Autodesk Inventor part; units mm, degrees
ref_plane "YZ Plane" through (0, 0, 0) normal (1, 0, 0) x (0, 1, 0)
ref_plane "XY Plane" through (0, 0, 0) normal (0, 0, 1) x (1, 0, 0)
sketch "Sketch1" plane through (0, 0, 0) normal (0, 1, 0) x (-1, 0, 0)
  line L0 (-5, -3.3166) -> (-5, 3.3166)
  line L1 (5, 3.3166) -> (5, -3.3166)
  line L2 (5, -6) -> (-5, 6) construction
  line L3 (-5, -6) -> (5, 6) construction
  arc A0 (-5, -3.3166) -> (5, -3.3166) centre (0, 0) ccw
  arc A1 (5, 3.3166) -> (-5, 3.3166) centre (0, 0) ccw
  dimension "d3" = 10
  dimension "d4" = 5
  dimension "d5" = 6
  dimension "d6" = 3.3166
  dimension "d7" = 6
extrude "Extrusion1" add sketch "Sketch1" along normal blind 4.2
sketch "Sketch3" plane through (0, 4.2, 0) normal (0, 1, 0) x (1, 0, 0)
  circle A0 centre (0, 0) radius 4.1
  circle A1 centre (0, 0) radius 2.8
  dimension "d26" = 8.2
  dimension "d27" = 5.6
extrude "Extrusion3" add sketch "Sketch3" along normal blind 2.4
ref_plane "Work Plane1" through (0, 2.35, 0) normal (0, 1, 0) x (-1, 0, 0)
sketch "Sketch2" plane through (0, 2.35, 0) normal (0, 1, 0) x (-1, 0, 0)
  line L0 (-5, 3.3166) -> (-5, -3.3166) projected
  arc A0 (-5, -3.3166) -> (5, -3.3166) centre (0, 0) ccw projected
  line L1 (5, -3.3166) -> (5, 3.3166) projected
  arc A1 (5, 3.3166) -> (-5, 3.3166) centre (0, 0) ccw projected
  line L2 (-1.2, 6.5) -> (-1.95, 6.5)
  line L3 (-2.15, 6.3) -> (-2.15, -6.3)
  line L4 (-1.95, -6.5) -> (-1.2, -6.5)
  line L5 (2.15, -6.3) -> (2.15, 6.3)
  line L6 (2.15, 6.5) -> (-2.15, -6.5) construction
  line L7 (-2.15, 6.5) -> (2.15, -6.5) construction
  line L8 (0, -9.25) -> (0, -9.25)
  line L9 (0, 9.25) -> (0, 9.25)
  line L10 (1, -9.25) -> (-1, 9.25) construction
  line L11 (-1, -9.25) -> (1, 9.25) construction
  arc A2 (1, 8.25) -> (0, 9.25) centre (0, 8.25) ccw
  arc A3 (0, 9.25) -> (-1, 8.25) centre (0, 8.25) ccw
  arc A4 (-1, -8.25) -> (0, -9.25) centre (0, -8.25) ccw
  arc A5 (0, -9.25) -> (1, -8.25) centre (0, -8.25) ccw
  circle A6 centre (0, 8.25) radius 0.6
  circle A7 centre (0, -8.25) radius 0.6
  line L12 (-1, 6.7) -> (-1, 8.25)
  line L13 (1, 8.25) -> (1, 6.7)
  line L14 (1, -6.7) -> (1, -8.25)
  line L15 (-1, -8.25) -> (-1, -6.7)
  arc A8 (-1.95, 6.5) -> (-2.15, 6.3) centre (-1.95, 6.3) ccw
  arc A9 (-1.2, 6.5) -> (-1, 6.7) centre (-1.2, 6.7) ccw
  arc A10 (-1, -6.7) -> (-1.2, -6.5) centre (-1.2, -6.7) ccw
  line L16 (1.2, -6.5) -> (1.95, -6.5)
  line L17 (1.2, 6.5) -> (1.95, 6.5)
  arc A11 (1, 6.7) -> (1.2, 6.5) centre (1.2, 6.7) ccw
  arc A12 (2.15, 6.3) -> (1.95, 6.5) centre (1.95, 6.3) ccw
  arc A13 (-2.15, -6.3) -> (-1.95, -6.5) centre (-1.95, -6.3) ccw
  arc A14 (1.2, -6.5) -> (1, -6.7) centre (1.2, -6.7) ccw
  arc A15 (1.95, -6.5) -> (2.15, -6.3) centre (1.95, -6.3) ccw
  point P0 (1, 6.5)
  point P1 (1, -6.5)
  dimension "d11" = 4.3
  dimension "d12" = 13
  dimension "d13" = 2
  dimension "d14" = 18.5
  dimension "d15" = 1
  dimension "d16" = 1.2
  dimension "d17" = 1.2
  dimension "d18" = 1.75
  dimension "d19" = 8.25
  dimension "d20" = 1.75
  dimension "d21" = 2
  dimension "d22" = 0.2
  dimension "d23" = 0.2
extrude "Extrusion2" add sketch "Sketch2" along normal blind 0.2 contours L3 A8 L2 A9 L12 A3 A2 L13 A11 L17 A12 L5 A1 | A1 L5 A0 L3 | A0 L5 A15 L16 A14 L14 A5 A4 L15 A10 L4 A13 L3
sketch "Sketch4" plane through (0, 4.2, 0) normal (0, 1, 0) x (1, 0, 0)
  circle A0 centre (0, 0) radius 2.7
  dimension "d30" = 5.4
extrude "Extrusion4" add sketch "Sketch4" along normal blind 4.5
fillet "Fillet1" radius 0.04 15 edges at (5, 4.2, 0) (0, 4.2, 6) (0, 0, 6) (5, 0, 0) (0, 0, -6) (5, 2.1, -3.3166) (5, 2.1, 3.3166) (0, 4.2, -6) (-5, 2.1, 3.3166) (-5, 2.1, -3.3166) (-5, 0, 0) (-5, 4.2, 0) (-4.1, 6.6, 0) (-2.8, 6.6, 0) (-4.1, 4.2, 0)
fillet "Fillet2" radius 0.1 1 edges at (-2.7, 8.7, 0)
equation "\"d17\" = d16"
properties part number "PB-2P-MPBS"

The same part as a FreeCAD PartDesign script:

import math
import FreeCAD as App
import Part
import Sketcher


def edges_at(feature, points):
    """Names of the edges that pass closest to the given points."""
    edges = feature.Shape.Edges
    near = lambda p: min(range(len(edges)), key=lambda i: edges[i].distToShape(Part.Vertex(*p))[0])
    return sorted({f"Edge{near(p) + 1}" for p in points})

doc = App.newDocument("Part")
params = doc.addObject("Spreadsheet::Sheet", "Params")
for row, (alias, value) in enumerate([
    ("sketch1_radius", "6 mm"),
    ("pad1_length", "4.2 mm"),
    ("sketch2_diameter", "8.2 mm"),
    ("sketch2_diameter2", "5.6 mm"),
    ("pad2_length", "2.4 mm"),
    ("sketch3_radius", "1 mm"),
    ("sketch3_diameter", "1.2 mm"),
    ("sketch3_radius2", "0.2 mm"),
    ("sketch3_width", "0.75 mm"),
    ("pad3_length", "0.2 mm"),
    ("sketch4_diameter", "5.4 mm"),
    ("pad4_length", "4.5 mm"),
    ("fillet_radius", "0.04 mm"),
    ("fillet2_radius", "0.1 mm"),
], start=1):
    params.set(f"A{row}", alias)
    params.set(f"B{row}", "=" + value)
    params.setAlias(f"B{row}", alias)

body = doc.addObject("PartDesign::Body", "Body")

sketch1 = doc.addObject("Sketcher::SketchObject", "Sketch")
body.addObject(sketch1)
sketch1.AttachmentSupport = (doc.XZ_Plane, [""])
sketch1.MapMode = "FlatFace"
sketch1.addGeometry([
    Part.LineSegment(App.Vector(5, 3, 0), App.Vector(5, -3, 0)),
    Part.ArcOfCircle(Part.Circle(App.Vector(0, 0, 0), App.Vector(0, 0, 1), 6), math.radians(-146), math.radians(-34)),
    Part.LineSegment(App.Vector(-5, -3, 0), App.Vector(-5, 3, 0)),
    Part.ArcOfCircle(Part.Circle(App.Vector(0, 0, 0), App.Vector(0, 0, 1), 6), math.radians(34), math.radians(146)),
], False)
sketch1.addConstraint([
    Sketcher.Constraint("Coincident", 0, 2, 1, 2),
    Sketcher.Constraint("Coincident", 1, 1, 2, 1),
    Sketcher.Constraint("Coincident", 2, 2, 3, 2),
    Sketcher.Constraint("Coincident", 3, 1, 0, 1),
    Sketcher.Constraint("Vertical", 0),
    Sketcher.Constraint("Vertical", 2),
    Sketcher.Constraint("Coincident", 1, 3, -1, 1),
    Sketcher.Constraint("Coincident", 3, 3, -1, 1),
    Sketcher.Constraint("Equal", 1, 3),
    Sketcher.Constraint("Horizontal", 0, 2, 1, 1),
    Sketcher.Constraint("Radius", 1, 6.0),
    Sketcher.Constraint("DistanceX", -1, 1, 0, 2, 5.0),
])
sketch1.setExpression("Constraints[10]", "Params.sketch1_radius")
pad1 = doc.addObject("PartDesign::Pad", "Pad")
body.addObject(pad1)
pad1.Profile = sketch1
pad1.setExpression("Length", "Params.pad1_length")
pad1.Reversed = True

sketch2 = doc.addObject("Sketcher::SketchObject", "Sketch001")
body.addObject(sketch2)
sketch2.AttachmentSupport = (doc.XZ_Plane, [""])
sketch2.MapMode = "FlatFace"
sketch2.AttachmentOffset = App.Placement(App.Vector(0, 0, -4.2), App.Rotation())
sketch2.addGeometry([
    Part.Circle(App.Vector(0, 0, 0), App.Vector(0, 0, 1), 4.1),
    Part.Circle(App.Vector(0, 0, 0), App.Vector(0, 0, 1), 2.8),
], False)
sketch2.addConstraint([
    Sketcher.Constraint("Coincident", 0, 3, -1, 1),
    Sketcher.Constraint("Coincident", 1, 3, -1, 1),
    Sketcher.Constraint("Diameter", 0, 8.2),
    Sketcher.Constraint("Diameter", 1, 5.6),
])
sketch2.setExpression("Constraints[2]", "Params.sketch2_diameter")
sketch2.setExpression("Constraints[3]", "Params.sketch2_diameter2")
pad2 = doc.addObject("PartDesign::Pad", "Pad001")
body.addObject(pad2)
pad2.Profile = sketch2
pad2.setExpression("Length", "Params.pad2_length")
pad2.Reversed = True

sketch3 = doc.addObject("Sketcher::SketchObject", "Sketch002")
body.addObject(sketch3)
sketch3.AttachmentSupport = (doc.XZ_Plane, [""])
sketch3.MapMode = "FlatFace"
sketch3.AttachmentOffset = App.Placement(App.Vector(0, 0, -2.35), App.Rotation())
sketch3.addGeometry([
    Part.LineSegment(App.Vector(2.15, 6.3, 0), App.Vector(2.15, -6.3, 0)),
    Part.ArcOfCircle(Part.Circle(App.Vector(1.95, -6.3, 0), App.Vector(0, 0, 1), 0.2), math.radians(-90), math.radians(0)),
    Part.LineSegment(App.Vector(1.95, -6.5, 0), App.Vector(1.2, -6.5, 0)),
    Part.ArcOfCircle(Part.Circle(App.Vector(1.2, -6.7, 0), App.Vector(0, 0, 1), 0.2), math.radians(90), math.radians(180)),
    Part.LineSegment(App.Vector(1, -6.7, 0), App.Vector(1, -8.25, 0)),
    Part.ArcOfCircle(Part.Circle(App.Vector(0, -8.25, 0), App.Vector(0, 0, 1), 1), math.radians(180), math.radians(360)),
    Part.LineSegment(App.Vector(-1, -8.25, 0), App.Vector(-1, -6.7, 0)),
    Part.ArcOfCircle(Part.Circle(App.Vector(-1.2, -6.7, 0), App.Vector(0, 0, 1), 0.2), math.radians(0), math.radians(90)),
    Part.LineSegment(App.Vector(-1.2, -6.5, 0), App.Vector(-1.95, -6.5, 0)),
    Part.ArcOfCircle(Part.Circle(App.Vector(-1.95, -6.3, 0), App.Vector(0, 0, 1), 0.2), math.radians(180), math.radians(270)),
    Part.LineSegment(App.Vector(-2.15, -6.3, 0), App.Vector(-2.15, 6.3, 0)),
    Part.ArcOfCircle(Part.Circle(App.Vector(-1.95, 6.3, 0), App.Vector(0, 0, 1), 0.2), math.radians(90), math.radians(180)),
    Part.LineSegment(App.Vector(-1.95, 6.5, 0), App.Vector(-1.2, 6.5, 0)),
    Part.ArcOfCircle(Part.Circle(App.Vector(-1.2, 6.7, 0), App.Vector(0, 0, 1), 0.2), math.radians(-90), math.radians(0)),
    Part.LineSegment(App.Vector(-1, 6.7, 0), App.Vector(-1, 8.25, 0)),
    Part.ArcOfCircle(Part.Circle(App.Vector(0, 8.25, 0), App.Vector(0, 0, 1), 1), math.radians(0), math.radians(180)),
    Part.LineSegment(App.Vector(1, 8.25, 0), App.Vector(1, 6.7, 0)),
    Part.ArcOfCircle(Part.Circle(App.Vector(1.2, 6.7, 0), App.Vector(0, 0, 1), 0.2), math.radians(180), math.radians(270)),
    Part.LineSegment(App.Vector(1.2, 6.5, 0), App.Vector(1.95, 6.5, 0)),
    Part.ArcOfCircle(Part.Circle(App.Vector(1.95, 6.3, 0), App.Vector(0, 0, 1), 0.2), math.radians(0), math.radians(90)),
    Part.Circle(App.Vector(0, 8.25, 0), App.Vector(0, 0, 1), 0.6),
    Part.Circle(App.Vector(0, -8.25, 0), App.Vector(0, 0, 1), 0.6),
], False)
sketch3.addConstraint([
    Sketcher.Constraint("Tangent", 0, 2, 1, 2),
    Sketcher.Constraint("Tangent", 1, 1, 2, 1),
    Sketcher.Constraint("Tangent", 2, 2, 3, 1),
    Sketcher.Constraint("Tangent", 3, 2, 4, 1),
    Sketcher.Constraint("Tangent", 4, 2, 5, 2),
    Sketcher.Constraint("Tangent", 5, 1, 6, 1),
    Sketcher.Constraint("Tangent", 6, 2, 7, 1),
    Sketcher.Constraint("Tangent", 7, 2, 8, 1),
    Sketcher.Constraint("Tangent", 8, 2, 9, 2),
    Sketcher.Constraint("Tangent", 9, 1, 10, 1),
    Sketcher.Constraint("Tangent", 10, 2, 11, 2),
    Sketcher.Constraint("Tangent", 11, 1, 12, 1),
    Sketcher.Constraint("Tangent", 12, 2, 13, 1),
    Sketcher.Constraint("Tangent", 13, 2, 14, 1),
    Sketcher.Constraint("Tangent", 14, 2, 15, 2),
    Sketcher.Constraint("Tangent", 15, 1, 16, 1),
    Sketcher.Constraint("Tangent", 16, 2, 17, 1),
    Sketcher.Constraint("Tangent", 17, 2, 18, 1),
    Sketcher.Constraint("Tangent", 18, 2, 19, 2),
    Sketcher.Constraint("Tangent", 19, 1, 0, 1),
    Sketcher.Constraint("Vertical", 0),
    Sketcher.Constraint("Horizontal", 2),
    Sketcher.Constraint("Vertical", 4),
    Sketcher.Constraint("Vertical", 6),
    Sketcher.Constraint("Horizontal", 8),
    Sketcher.Constraint("Vertical", 10),
    Sketcher.Constraint("Horizontal", 12),
    Sketcher.Constraint("Vertical", 14),
    Sketcher.Constraint("Vertical", 16),
    Sketcher.Constraint("Horizontal", 18),
    Sketcher.Constraint("Coincident", 20, 3, 15, 3),
    Sketcher.Constraint("Coincident", 21, 3, 5, 3),
    Sketcher.Constraint("Equal", 1, 3),
    Sketcher.Constraint("Equal", 3, 7),
    Sketcher.Constraint("Equal", 7, 9),
    Sketcher.Constraint("Equal", 9, 11),
    Sketcher.Constraint("Equal", 11, 13),
    Sketcher.Constraint("Equal", 5, 15),
    Sketcher.Constraint("Equal", 13, 17),
    Sketcher.Constraint("Equal", 17, 19),
    Sketcher.Constraint("Equal", 20, 21),
    Sketcher.Constraint("Symmetric", 1, 3, 11, 3, -1, 1),
    Sketcher.Constraint("Symmetric", 5, 3, 15, 3, -1, 1),
    Sketcher.Constraint("Symmetric", 3, 3, 7, 3, -2),
    Sketcher.Constraint("Horizontal", 13, 3, 17, 3),
    Sketcher.Constraint("Radius", 5, 1.0),
    Sketcher.Constraint("Diameter", 20, 1.2),
    Sketcher.Constraint("Radius", 1, 0.2),
    Sketcher.Constraint("DistanceY", 7, 3, 11, 3, 13.0),
    Sketcher.Constraint("DistanceY", 5, 3, -1, 1, 8.25),
    Sketcher.Constraint("DistanceX", 2, 2, 2, 1, 0.75),
])
sketch3.setExpression("Constraints[45]", "Params.sketch3_radius")
sketch3.setExpression("Constraints[46]", "Params.sketch3_diameter")
sketch3.setExpression("Constraints[47]", "Params.sketch3_radius2")
sketch3.setExpression("Constraints[50]", "Params.sketch3_width")
pad3 = doc.addObject("PartDesign::Pad", "Pad002")
body.addObject(pad3)
pad3.Profile = sketch3
pad3.setExpression("Length", "Params.pad3_length")
pad3.Reversed = True

sketch4 = doc.addObject("Sketcher::SketchObject", "Sketch003")
body.addObject(sketch4)
sketch4.AttachmentSupport = (doc.XZ_Plane, [""])
sketch4.MapMode = "FlatFace"
sketch4.AttachmentOffset = App.Placement(App.Vector(0, 0, -4.2), App.Rotation())
sketch4.addGeometry(Part.Circle(App.Vector(0, 0, 0), App.Vector(0, 0, 1), 2.7), False)
sketch4.addConstraint([
    Sketcher.Constraint("Coincident", 0, 3, -1, 1),
    Sketcher.Constraint("Diameter", 0, 5.4),
])
sketch4.setExpression("Constraints[1]", "Params.sketch4_diameter")
pad4 = doc.addObject("PartDesign::Pad", "Pad003")
body.addObject(pad4)
pad4.Profile = sketch4
pad4.setExpression("Length", "Params.pad4_length")
pad4.Reversed = True
doc.recompute()

fillet = doc.addObject("PartDesign::Fillet", "Fillet")
body.addObject(fillet)
fillet.Base = (pad4, edges_at(pad4, [
    (5, 4.2, 0),
    (0, 4.2, 6),
    (0, 0, 6),
    (5, 0, 0),
    (0, 0, -6),
    (5, 2.1, -3.317),
    (5, 2.1, 3.317),
    (0, 4.2, -6),
    (-5, 2.1, 3.317),
    (-5, 2.1, -3.317),
    (-5, 0, 0),
    (-5, 4.2, 0),
    (-4.1, 6.6, 0),
    (-2.8, 6.6, 0),
    (-4.1, 4.2, 0),
]))
fillet.setExpression("Radius", "Params.fillet_radius")
doc.recompute()

fillet2 = doc.addObject("PartDesign::Fillet", "Fillet001")
body.addObject(fillet2)
fillet2.Base = (fillet, edges_at(fillet, [(-2.7, 8.7, 0)]))
fillet2.setExpression("Radius", "Params.fillet2_radius")

doc.recompute()
